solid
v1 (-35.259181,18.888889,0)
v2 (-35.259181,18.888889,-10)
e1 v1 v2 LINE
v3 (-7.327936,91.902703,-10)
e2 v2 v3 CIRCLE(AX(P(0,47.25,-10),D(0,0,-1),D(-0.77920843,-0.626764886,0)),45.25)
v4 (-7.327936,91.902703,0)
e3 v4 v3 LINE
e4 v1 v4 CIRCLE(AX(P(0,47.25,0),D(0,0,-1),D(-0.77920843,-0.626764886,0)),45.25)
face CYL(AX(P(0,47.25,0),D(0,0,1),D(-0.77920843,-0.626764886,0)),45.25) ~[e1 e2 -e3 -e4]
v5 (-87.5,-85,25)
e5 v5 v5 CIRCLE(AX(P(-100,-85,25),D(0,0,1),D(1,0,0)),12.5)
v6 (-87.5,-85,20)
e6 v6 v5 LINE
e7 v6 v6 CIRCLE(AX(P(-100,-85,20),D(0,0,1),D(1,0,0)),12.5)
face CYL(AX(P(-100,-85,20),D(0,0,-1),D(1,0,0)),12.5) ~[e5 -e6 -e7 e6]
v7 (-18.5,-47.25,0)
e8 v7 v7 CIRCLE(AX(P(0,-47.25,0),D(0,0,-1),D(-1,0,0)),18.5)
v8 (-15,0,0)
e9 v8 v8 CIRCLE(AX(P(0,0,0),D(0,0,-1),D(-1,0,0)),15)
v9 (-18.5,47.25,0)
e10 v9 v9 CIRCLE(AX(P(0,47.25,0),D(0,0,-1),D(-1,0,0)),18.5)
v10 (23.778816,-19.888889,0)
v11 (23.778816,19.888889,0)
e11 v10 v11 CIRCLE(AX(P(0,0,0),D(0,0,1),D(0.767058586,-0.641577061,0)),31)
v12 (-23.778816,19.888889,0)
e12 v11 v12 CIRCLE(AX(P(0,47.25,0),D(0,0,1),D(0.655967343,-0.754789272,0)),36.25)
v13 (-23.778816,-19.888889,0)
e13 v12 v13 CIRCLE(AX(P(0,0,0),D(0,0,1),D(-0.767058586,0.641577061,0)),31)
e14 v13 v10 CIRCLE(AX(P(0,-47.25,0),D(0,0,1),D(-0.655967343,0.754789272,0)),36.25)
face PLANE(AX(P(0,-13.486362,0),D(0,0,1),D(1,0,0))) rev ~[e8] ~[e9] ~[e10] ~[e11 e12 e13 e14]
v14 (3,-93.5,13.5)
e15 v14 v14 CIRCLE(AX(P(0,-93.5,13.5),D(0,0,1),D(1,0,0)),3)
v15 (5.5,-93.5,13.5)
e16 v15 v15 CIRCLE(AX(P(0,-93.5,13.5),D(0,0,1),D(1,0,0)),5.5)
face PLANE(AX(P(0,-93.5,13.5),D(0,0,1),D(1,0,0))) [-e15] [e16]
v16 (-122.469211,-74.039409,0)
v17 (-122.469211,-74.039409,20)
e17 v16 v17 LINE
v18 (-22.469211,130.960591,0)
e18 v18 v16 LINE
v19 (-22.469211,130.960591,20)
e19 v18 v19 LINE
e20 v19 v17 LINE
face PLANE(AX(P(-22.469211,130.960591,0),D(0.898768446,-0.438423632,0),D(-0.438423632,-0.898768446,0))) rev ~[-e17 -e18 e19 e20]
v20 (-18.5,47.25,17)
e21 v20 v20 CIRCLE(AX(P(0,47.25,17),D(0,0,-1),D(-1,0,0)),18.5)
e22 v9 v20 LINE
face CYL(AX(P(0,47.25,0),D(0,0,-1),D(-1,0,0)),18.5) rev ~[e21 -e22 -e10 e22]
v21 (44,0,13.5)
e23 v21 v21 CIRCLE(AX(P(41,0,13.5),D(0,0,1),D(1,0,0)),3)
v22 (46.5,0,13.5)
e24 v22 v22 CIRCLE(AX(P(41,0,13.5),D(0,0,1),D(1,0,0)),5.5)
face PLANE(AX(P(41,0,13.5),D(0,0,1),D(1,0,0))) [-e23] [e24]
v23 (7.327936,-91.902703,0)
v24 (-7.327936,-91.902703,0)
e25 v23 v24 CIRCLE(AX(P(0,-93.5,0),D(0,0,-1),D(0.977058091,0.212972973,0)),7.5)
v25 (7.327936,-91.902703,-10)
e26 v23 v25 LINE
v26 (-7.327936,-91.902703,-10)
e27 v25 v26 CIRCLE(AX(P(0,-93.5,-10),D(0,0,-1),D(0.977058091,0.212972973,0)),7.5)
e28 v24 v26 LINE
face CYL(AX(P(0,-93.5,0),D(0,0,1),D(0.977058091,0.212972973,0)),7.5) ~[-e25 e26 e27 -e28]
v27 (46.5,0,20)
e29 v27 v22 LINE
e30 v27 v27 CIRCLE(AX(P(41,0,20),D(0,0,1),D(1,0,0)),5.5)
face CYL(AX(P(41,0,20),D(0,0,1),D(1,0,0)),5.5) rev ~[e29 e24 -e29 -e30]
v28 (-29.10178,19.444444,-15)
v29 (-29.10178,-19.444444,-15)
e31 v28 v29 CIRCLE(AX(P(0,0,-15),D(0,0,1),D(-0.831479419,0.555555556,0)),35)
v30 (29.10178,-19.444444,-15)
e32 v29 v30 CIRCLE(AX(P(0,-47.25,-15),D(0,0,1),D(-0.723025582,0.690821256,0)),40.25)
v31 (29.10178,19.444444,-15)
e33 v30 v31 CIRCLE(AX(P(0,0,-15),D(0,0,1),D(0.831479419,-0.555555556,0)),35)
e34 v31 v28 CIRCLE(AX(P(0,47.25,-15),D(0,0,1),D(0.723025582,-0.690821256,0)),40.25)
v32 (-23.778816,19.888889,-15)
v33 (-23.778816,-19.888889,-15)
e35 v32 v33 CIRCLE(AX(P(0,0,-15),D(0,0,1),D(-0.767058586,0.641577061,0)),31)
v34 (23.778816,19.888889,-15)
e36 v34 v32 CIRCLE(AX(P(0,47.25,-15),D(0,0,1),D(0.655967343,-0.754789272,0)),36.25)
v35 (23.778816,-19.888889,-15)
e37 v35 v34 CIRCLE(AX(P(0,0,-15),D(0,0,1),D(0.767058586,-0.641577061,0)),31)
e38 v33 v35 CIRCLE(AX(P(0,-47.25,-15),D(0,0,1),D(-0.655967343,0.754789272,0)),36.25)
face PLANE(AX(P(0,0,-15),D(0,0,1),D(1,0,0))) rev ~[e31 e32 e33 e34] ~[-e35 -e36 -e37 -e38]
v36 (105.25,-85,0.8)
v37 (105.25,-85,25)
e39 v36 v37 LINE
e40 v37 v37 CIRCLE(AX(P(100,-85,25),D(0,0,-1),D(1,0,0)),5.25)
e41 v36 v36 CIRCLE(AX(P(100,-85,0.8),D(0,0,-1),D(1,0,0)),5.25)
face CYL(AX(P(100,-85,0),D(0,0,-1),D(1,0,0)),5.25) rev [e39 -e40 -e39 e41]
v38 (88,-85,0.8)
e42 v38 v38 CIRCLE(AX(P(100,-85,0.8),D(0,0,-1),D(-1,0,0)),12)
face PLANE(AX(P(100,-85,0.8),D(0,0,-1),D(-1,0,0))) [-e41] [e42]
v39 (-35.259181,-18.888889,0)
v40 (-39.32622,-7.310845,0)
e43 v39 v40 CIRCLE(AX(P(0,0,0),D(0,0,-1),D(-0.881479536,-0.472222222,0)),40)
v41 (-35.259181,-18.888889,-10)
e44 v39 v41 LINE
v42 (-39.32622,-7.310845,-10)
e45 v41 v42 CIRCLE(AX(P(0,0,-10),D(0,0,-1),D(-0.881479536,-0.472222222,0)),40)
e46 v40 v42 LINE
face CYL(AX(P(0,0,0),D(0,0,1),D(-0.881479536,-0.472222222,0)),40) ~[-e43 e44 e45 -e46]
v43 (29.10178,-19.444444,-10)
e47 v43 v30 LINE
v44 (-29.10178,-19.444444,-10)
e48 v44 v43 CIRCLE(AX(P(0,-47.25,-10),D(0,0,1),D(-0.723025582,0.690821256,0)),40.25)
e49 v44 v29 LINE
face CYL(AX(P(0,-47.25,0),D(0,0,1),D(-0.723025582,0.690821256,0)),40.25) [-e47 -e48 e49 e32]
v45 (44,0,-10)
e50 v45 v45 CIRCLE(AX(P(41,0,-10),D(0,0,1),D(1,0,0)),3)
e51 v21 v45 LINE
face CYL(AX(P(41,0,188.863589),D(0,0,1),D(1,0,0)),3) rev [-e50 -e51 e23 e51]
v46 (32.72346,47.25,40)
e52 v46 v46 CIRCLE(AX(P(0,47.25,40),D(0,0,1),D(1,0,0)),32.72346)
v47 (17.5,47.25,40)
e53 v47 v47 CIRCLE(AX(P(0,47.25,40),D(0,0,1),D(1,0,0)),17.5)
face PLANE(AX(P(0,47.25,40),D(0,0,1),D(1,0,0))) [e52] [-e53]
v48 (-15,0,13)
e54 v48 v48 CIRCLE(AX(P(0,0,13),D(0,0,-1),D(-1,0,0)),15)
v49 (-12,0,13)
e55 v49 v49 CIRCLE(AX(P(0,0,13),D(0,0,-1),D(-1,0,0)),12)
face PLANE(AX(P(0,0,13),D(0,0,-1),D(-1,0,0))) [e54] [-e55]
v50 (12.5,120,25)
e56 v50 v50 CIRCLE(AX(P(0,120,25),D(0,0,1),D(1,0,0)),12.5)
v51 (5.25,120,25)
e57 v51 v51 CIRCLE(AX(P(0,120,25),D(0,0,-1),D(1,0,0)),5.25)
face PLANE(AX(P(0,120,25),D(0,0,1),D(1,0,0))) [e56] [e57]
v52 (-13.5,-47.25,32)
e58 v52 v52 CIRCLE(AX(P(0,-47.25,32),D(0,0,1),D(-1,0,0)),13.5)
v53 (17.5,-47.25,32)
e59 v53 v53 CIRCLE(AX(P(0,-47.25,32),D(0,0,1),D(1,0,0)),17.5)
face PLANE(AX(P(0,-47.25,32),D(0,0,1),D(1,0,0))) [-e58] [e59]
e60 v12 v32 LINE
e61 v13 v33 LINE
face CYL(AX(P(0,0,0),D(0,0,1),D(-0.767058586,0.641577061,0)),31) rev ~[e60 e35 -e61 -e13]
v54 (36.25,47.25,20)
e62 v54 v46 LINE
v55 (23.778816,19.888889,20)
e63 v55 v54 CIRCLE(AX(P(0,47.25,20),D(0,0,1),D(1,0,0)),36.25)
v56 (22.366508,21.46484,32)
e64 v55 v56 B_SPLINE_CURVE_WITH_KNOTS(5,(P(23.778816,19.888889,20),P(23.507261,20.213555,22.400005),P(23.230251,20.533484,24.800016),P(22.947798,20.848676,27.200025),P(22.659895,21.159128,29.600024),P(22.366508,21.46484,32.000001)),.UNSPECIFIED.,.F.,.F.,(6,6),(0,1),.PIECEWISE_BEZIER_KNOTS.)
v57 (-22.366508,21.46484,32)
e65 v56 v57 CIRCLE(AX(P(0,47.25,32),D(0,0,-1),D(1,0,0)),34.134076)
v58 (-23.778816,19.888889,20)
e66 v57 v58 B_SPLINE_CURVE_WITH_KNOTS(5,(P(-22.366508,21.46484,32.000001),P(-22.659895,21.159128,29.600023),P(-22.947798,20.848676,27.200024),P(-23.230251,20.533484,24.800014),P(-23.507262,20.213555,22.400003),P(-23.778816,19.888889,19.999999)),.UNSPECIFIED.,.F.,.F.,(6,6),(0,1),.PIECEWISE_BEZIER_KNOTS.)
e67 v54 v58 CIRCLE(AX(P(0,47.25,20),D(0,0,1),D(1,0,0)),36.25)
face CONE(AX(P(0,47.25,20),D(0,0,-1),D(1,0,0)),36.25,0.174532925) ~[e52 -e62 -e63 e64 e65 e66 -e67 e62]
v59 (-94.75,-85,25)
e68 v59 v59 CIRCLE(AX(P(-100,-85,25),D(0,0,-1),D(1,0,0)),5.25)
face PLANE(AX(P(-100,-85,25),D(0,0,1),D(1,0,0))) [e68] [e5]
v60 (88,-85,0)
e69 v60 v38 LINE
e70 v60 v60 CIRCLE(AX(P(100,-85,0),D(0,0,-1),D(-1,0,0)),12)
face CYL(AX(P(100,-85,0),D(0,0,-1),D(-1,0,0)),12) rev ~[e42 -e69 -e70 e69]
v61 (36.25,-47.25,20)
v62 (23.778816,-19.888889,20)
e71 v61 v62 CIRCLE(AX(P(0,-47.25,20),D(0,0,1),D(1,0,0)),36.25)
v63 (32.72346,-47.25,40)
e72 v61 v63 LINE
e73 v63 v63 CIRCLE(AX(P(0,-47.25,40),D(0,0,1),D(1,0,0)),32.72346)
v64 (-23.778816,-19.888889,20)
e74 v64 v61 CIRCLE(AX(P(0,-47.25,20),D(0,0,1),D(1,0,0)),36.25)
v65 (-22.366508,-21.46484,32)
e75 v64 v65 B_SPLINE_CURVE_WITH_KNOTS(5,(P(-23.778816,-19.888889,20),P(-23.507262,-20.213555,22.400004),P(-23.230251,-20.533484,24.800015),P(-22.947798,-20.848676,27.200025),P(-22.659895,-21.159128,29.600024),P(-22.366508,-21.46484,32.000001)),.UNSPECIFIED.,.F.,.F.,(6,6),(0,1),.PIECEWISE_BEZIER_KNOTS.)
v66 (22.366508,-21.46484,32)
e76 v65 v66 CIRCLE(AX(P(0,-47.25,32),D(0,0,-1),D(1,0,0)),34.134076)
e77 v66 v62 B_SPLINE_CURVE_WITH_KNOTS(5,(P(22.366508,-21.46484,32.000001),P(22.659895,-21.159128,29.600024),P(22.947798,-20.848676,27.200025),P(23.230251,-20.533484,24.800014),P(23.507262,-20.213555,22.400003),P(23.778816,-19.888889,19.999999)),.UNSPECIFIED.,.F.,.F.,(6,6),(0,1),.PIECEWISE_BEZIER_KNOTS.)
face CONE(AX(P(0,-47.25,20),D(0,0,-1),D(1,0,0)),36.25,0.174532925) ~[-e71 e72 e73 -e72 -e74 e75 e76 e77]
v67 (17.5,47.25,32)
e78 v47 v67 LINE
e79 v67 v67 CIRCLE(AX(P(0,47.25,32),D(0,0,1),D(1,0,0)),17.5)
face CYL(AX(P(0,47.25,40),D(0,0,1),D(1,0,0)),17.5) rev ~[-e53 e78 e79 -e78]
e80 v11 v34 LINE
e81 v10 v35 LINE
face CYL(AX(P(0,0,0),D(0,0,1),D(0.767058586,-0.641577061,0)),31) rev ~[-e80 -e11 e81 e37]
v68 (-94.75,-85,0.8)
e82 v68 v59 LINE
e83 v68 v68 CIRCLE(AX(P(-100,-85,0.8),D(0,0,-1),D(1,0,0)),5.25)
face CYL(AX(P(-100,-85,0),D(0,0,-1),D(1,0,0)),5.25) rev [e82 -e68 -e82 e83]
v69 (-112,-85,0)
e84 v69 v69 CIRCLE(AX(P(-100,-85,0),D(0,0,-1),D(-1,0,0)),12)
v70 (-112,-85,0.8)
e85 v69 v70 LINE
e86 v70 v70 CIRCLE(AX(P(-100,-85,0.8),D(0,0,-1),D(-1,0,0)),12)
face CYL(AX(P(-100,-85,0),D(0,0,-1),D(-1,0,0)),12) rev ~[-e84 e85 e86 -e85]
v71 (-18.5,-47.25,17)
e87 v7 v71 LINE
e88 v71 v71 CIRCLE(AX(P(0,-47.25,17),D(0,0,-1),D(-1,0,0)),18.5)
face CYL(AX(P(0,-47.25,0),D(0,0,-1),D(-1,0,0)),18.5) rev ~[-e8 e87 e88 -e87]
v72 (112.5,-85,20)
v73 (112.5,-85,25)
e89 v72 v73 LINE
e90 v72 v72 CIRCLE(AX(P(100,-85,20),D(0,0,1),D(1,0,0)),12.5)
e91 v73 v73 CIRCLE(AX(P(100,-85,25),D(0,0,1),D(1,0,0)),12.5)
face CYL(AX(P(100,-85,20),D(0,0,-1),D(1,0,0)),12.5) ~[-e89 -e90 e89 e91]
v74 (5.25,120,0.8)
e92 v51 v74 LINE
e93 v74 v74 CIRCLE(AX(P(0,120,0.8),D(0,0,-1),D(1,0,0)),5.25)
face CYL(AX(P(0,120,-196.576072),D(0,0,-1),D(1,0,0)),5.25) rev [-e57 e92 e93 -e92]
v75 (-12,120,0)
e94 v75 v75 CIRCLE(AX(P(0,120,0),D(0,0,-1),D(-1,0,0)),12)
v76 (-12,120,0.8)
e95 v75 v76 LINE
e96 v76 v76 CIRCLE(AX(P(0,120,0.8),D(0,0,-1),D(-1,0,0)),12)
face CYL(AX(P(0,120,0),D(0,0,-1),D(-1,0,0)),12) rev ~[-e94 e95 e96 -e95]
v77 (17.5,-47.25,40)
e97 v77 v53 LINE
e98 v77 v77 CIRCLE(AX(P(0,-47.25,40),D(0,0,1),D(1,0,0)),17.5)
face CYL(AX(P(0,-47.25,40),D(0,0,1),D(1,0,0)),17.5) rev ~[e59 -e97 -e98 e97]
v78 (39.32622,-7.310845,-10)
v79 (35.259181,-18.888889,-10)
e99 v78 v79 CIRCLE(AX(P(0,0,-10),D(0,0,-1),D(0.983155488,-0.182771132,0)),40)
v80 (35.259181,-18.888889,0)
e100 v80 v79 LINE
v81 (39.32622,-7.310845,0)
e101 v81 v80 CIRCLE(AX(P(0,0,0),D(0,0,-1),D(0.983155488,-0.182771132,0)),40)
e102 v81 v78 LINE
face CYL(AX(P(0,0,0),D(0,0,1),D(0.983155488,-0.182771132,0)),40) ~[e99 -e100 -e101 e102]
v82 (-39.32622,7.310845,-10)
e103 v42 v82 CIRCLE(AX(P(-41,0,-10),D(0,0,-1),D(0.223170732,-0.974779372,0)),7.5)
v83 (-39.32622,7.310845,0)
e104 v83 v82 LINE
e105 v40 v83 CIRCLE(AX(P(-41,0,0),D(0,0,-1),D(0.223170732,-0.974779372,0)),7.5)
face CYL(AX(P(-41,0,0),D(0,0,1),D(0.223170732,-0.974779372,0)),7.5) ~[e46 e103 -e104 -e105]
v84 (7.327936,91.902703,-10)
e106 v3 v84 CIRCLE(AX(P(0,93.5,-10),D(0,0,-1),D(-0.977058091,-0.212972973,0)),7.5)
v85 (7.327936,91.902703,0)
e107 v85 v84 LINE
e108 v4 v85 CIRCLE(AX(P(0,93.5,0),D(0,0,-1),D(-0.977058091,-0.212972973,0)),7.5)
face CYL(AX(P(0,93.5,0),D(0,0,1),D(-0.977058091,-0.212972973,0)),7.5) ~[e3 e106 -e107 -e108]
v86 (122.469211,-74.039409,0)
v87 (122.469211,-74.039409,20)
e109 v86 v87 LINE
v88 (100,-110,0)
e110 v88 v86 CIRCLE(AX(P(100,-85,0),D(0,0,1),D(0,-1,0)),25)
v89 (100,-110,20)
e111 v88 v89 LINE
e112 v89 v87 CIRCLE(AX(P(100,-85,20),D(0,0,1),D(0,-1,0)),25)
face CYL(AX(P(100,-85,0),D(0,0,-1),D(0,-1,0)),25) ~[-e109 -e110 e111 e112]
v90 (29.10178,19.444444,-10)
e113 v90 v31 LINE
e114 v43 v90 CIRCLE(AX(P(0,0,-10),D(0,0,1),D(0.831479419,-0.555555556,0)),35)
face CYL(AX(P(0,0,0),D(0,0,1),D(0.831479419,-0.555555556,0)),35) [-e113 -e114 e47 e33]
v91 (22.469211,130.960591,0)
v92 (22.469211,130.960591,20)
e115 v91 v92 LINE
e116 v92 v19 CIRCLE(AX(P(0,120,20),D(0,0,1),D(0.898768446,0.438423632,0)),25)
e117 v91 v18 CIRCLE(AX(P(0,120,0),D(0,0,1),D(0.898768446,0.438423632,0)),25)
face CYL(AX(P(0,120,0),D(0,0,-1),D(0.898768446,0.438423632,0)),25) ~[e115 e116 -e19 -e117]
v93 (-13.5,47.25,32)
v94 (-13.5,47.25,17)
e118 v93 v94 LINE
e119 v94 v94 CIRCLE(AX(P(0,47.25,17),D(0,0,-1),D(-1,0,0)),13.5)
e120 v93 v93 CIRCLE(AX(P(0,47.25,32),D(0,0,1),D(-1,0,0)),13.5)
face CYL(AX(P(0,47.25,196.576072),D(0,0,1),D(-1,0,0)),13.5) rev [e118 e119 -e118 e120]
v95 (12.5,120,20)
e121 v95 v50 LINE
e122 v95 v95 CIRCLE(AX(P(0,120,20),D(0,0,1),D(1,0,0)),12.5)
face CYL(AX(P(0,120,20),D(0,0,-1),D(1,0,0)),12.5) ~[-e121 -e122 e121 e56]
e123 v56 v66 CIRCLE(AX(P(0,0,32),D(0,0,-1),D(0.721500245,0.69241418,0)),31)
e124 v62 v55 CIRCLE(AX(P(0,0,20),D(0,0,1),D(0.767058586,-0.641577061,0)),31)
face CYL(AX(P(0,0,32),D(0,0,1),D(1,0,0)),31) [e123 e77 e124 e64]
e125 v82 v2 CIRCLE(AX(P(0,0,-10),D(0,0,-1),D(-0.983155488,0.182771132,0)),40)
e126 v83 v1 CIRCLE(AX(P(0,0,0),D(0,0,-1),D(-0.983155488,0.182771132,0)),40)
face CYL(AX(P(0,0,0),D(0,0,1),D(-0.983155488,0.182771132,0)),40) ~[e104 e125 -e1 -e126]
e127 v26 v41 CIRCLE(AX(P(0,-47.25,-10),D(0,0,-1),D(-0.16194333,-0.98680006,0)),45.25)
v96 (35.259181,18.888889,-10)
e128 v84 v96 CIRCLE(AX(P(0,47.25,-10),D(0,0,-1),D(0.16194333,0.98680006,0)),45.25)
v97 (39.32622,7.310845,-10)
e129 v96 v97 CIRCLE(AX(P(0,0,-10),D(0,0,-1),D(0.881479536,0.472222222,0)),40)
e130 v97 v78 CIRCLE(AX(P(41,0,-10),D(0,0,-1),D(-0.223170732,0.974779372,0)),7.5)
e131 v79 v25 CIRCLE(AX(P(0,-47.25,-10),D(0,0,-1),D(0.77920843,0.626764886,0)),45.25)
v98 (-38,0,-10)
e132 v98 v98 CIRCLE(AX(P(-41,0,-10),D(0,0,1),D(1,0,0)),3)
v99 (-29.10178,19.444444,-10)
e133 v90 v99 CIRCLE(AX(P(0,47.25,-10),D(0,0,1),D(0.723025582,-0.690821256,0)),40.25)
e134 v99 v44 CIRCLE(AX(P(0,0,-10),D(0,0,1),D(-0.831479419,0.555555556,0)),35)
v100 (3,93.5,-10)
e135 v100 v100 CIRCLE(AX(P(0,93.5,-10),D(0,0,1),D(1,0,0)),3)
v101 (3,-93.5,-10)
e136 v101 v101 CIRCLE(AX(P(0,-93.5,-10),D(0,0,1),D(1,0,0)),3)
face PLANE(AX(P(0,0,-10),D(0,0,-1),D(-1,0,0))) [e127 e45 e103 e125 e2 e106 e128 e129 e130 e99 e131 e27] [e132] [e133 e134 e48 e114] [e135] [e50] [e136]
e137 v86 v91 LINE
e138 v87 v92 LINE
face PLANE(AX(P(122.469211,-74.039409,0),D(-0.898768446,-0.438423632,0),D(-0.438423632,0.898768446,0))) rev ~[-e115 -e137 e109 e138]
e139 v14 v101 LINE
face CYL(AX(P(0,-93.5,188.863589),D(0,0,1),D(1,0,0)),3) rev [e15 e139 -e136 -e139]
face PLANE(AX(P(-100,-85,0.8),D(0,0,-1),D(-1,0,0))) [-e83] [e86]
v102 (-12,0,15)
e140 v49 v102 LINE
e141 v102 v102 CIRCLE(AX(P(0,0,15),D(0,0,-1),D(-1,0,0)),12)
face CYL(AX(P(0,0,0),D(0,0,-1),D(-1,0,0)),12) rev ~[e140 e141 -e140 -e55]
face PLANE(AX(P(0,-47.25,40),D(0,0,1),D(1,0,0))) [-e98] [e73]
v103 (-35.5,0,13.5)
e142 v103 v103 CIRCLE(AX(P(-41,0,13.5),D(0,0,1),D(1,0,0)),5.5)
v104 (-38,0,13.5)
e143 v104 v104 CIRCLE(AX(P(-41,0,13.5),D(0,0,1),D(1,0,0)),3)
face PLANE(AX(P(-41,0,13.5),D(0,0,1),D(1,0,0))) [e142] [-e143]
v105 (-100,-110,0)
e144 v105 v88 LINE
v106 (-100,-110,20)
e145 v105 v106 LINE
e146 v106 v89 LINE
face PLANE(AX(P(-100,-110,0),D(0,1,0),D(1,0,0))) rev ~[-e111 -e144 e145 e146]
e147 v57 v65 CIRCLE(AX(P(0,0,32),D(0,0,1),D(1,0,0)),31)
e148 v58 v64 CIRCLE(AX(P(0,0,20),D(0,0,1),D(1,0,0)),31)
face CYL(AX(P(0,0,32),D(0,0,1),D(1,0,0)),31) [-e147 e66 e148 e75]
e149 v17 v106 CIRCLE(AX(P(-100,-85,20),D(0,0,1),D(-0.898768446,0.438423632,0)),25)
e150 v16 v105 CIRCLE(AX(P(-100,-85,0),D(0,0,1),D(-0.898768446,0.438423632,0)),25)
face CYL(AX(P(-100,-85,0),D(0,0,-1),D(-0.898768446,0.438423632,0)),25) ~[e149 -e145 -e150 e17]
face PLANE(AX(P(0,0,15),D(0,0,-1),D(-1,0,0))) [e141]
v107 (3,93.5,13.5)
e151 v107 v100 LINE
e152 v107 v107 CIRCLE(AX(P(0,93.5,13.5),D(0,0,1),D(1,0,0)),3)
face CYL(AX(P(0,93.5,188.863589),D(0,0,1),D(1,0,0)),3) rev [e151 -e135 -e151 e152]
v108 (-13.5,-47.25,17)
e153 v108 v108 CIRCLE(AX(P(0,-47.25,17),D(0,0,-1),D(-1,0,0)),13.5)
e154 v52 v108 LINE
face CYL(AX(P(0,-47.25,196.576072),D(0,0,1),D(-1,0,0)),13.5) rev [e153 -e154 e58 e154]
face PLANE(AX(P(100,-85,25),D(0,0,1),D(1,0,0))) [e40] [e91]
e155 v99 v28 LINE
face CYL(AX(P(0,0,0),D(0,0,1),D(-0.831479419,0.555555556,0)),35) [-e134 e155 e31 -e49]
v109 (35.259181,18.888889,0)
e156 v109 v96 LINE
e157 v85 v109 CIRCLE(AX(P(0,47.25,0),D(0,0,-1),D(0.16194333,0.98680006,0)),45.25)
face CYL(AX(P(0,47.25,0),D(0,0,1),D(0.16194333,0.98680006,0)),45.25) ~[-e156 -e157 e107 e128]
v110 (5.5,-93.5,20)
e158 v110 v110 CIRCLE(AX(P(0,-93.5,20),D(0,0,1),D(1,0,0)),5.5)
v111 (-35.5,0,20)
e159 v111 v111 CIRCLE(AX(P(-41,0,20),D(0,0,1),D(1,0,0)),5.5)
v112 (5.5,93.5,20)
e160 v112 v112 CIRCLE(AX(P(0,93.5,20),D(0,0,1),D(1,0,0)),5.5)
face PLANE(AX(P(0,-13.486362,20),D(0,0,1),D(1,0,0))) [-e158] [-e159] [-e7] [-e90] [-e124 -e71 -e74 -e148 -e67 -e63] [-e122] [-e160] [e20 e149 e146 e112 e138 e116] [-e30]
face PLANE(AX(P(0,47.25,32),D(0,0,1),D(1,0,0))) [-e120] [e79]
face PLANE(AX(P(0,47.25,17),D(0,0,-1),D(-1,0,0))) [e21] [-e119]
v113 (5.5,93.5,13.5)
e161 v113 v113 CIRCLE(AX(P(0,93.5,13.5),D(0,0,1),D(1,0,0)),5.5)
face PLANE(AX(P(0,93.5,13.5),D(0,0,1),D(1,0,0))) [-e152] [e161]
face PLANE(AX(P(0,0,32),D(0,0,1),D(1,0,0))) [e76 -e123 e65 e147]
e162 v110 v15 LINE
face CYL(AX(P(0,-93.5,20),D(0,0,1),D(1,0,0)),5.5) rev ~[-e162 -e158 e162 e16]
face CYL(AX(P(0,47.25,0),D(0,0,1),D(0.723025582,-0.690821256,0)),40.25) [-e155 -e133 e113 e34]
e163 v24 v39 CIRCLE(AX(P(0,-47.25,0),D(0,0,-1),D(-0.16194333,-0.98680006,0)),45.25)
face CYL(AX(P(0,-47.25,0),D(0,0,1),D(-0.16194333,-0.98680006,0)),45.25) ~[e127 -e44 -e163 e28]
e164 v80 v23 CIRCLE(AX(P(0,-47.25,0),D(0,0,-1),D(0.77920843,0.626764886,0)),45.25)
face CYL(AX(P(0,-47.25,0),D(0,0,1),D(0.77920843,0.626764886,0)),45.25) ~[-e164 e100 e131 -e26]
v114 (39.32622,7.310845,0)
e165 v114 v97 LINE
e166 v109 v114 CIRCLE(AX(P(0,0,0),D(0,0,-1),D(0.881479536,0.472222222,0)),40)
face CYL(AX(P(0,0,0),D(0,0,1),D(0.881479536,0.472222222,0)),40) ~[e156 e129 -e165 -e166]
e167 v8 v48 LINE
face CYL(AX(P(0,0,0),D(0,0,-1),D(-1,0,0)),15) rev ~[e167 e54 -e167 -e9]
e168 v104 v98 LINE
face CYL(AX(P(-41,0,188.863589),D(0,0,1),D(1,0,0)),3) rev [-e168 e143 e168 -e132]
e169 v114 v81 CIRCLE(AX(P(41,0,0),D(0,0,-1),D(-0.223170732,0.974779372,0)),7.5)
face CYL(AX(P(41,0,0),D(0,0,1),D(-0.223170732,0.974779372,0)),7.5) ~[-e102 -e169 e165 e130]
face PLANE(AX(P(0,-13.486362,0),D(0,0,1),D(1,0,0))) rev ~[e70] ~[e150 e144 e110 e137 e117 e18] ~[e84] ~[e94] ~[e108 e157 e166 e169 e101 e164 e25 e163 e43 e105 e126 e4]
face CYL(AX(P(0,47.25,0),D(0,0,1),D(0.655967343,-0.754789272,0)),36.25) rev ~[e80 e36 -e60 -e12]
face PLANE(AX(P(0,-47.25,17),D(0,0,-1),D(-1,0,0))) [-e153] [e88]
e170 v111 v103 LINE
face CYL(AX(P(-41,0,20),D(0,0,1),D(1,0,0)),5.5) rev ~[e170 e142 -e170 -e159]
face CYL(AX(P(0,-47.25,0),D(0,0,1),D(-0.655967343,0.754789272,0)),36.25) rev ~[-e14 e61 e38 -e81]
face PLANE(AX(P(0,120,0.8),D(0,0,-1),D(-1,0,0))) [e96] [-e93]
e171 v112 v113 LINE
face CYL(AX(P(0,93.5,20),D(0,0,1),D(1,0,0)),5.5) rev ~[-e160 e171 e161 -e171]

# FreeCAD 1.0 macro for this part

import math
import FreeCAD as App
import Part
import Sketcher
from FreeCAD import Vector
Q = App.Units.Quantity


def faces_at(feature, points):
    """Names of the faces that lie closest to the given points."""
    faces = feature.Shape.Faces
    near = lambda p: min(range(len(faces)), key=lambda i: faces[i].distToShape(Part.Vertex(*p))[0])
    return sorted({f"Face{near(p) + 1}" for p in points})

doc = App.newDocument("Part")
params = doc.addObject("Spreadsheet::Sheet", "Params")
for row, (alias, value) in enumerate([
    ("sketch1_radius", "25 mm"),
    ("sketch1_diameter", "10.5 mm"),
    ("sketch1_width", "200 mm"),
    ("pad1_length", "20 mm"),
    ("sketch2_radius", "40 mm"),
    ("sketch2_radius2", "35 mm"),
    ("sketch2_radius3", "7.5 mm"),
    ("sketch2_radius4", "45.25 mm"),
    ("sketch2_radius5", "40.25 mm"),
    ("pad2_length", "10 mm"),
    ("sketch3_radius", "35 mm"),
    ("sketch3_radius2", "31 mm"),
    ("sketch3_radius3", "40.25 mm"),
    ("sketch3_radius4", "36.25 mm"),
    ("pad3_length", "15 mm"),
    ("sketch4_diameter", "72.5 mm"),
    ("pad4_length", "20 mm"),
    ("draft_angle", "10 deg"),
    ("sketch5_diameter", "72.5 mm"),
    ("pad5_length", "20 mm"),
    ("draft2_angle", "10 deg"),
    ("sketch6_diameter", "25 mm"),
    ("pad6_length", "5 mm"),
    ("sketch7_diameter", "10.5 mm"),
    ("sketch8_diameter", "62 mm"),
    ("pad7_length", "12 mm"),
    ("sketch9_diameter", "27 mm"),
    ("sketch10_diameter", "37 mm"),
    ("sketch10_diameter2", "27 mm"),
    ("pocket3_length", "17 mm"),
    ("sketch11_diameter", "24 mm"),
    ("pocket4_length", "15 mm"),
    ("sketch12_diameter", "30 mm"),
    ("sketch12_diameter2", "24 mm"),
    ("pocket5_length", "13 mm"),
    ("sketch13_diameter", "35 mm"),
    ("pocket6_length", "8 mm"),
    ("sketch14_diameter", "6 mm"),
    ("sketch15_diameter", "11 mm"),
    ("pocket8_length", "6.5 mm"),
    ("sketch16_diameter", "24 mm"),
    ("pocket9_length", "0.8 mm"),
], start=1):
    params.set(f"A{row}", alias)
    params.set(f"B{row}", "=" + value)
    params.setAlias(f"B{row}", alias)

body = doc.addObject("PartDesign::Body", "Body")

sketch1 = doc.addObject("Sketcher::SketchObject", "Sketch")
body.addObject(sketch1)
sketch1.AttachmentSupport = (doc.XY_Plane, [""])
sketch1.MapMode = "FlatFace"
sketch1.addGeometry([
    Part.LineSegment(Vector(-22, 131, 0), Vector(-122, -74, 0)),
    Part.ArcOfCircle(Part.Circle(Vector(-100, -85, 0), Vector(0, 0, 1), 25), math.radians(154), math.radians(270)),
    Part.LineSegment(Vector(-100, -110, 0), Vector(100, -110, 0)),
    Part.ArcOfCircle(Part.Circle(Vector(100, -85, 0), Vector(0, 0, 1), 25), math.radians(-90), math.radians(26)),
    Part.LineSegment(Vector(122, -74, 0), Vector(22, 131, 0)),
    Part.ArcOfCircle(Part.Circle(Vector(0, 120, 0), Vector(0, 0, 1), 25), math.radians(26), math.radians(154)),
    Part.Circle(Vector(-100, -85, 0), Vector(0, 0, 1), 5),
    Part.Circle(Vector(100, -85, 0), Vector(0, 0, 1), 5),
    Part.Circle(Vector(0, 120, 0), Vector(0, 0, 1), 5),
], False)
sketch1.addConstraint([
    Sketcher.Constraint("Tangent", 0, 2, 1, 1),
    Sketcher.Constraint("Tangent", 1, 2, 2, 1),
    Sketcher.Constraint("Tangent", 2, 2, 3, 1),
    Sketcher.Constraint("Tangent", 3, 2, 4, 1),
    Sketcher.Constraint("Tangent", 4, 2, 5, 1),
    Sketcher.Constraint("Tangent", 5, 2, 0, 1),
    Sketcher.Constraint("Horizontal", 2),
    Sketcher.Constraint("Coincident", 6, 3, 1, 3),
    Sketcher.Constraint("Coincident", 7, 3, 3, 3),
    Sketcher.Constraint("Coincident", 8, 3, 5, 3),
    Sketcher.Constraint("Equal", 1, 3),
    Sketcher.Constraint("Equal", 3, 5),
    Sketcher.Constraint("Equal", 6, 7),
    Sketcher.Constraint("Equal", 7, 8),
    Sketcher.Constraint("Symmetric", 0, 2, 3, 2, -2),
    Sketcher.Constraint("Radius", 1, Q("25 mm")),
    Sketcher.Constraint("Diameter", 6, Q("10.5 mm")),
    Sketcher.Constraint("DistanceX", 2, 1, 2, 2, Q("200 mm")),
    Sketcher.Constraint("DistanceY", 1, 3, -1, 1, Q("85 mm")),
    Sketcher.Constraint("DistanceY", -1, 1, 5, 3, Q("120 mm")),
])
sketch1.setExpression("Constraints[15]", "Params.sketch1_radius")
sketch1.setExpression("Constraints[16]", "Params.sketch1_diameter")
sketch1.setExpression("Constraints[17]", "Params.sketch1_width")
pad1 = doc.addObject("PartDesign::Pad", "Pad")
body.addObject(pad1)
pad1.Profile = sketch1
pad1.setExpression("Length", "Params.pad1_length")

sketch2 = doc.addObject("Sketcher::SketchObject", "Sketch001")
body.addObject(sketch2)
sketch2.AttachmentSupport = (doc.XY_Plane, [""])
sketch2.MapMode = "FlatFace"
sketch2.addGeometry([
    Part.ArcOfCircle(Part.Circle(Vector(41, 0, 0), Vector(0, 0, 1), 8), math.radians(-103), math.radians(103)),
    Part.ArcOfCircle(Part.Circle(Vector(0, 0, 0), Vector(0, 0, 1), 40), math.radians(10.53), math.radians(28.18)),
    Part.ArcOfCircle(Part.Circle(Vector(0, 47, 0), Vector(0, 0, 1), 45), math.radians(-39), math.radians(81)),
    Part.ArcOfCircle(Part.Circle(Vector(0, 94, 0), Vector(0, 0, 1), 8), math.radians(-12), math.radians(192)),
    Part.ArcOfCircle(Part.Circle(Vector(0, 47, 0), Vector(0, 0, 1), 45), math.radians(99), math.radians(219)),
    Part.ArcOfCircle(Part.Circle(Vector(0, 0, 0), Vector(0, 0, 1), 40), math.radians(151.82), math.radians(169.47)),
    Part.ArcOfCircle(Part.Circle(Vector(-41, 0, 0), Vector(0, 0, 1), 8), math.radians(77), math.radians(283)),
    Part.ArcOfCircle(Part.Circle(Vector(0, 0, 0), Vector(0, 0, 1), 40), math.radians(-169.47), math.radians(-151.82)),
    Part.ArcOfCircle(Part.Circle(Vector(0, -47, 0), Vector(0, 0, 1), 45), math.radians(141), math.radians(261)),
    Part.ArcOfCircle(Part.Circle(Vector(0, -94, 0), Vector(0, 0, 1), 8), math.radians(168), math.radians(372)),
    Part.ArcOfCircle(Part.Circle(Vector(0, -47, 0), Vector(0, 0, 1), 45), math.radians(-81), math.radians(39)),
    Part.ArcOfCircle(Part.Circle(Vector(0, 0, 0), Vector(0, 0, 1), 40), math.radians(-28.18), math.radians(-10.53)),
    Part.ArcOfCircle(Part.Circle(Vector(0, -47, 0), Vector(0, 0, 1), 40), math.radians(136), math.radians(404)),
    Part.ArcOfCircle(Part.Circle(Vector(0, 0, 0), Vector(0, 0, 1), 35), math.radians(146), math.radians(214)),
    Part.ArcOfCircle(Part.Circle(Vector(0, 47, 0), Vector(0, 0, 1), 40), math.radians(-44), math.radians(224)),
    Part.ArcOfCircle(Part.Circle(Vector(0, 0, 0), Vector(0, 0, 1), 35), math.radians(-34), math.radians(34)),
], False)
sketch2.addConstraint([
    Sketcher.Constraint("Coincident", 0, 2, 1, 1),
    Sketcher.Constraint("Coincident", 1, 2, 2, 1),
    Sketcher.Constraint("Coincident", 2, 2, 3, 1),
    Sketcher.Constraint("Coincident", 3, 2, 4, 1),
    Sketcher.Constraint("Coincident", 4, 2, 5, 1),
    Sketcher.Constraint("Coincident", 5, 2, 6, 1),
    Sketcher.Constraint("Coincident", 6, 2, 7, 1),
    Sketcher.Constraint("Coincident", 7, 2, 8, 1),
    Sketcher.Constraint("Coincident", 8, 2, 9, 1),
    Sketcher.Constraint("Coincident", 9, 2, 10, 1),
    Sketcher.Constraint("Coincident", 10, 2, 11, 1),
    Sketcher.Constraint("Coincident", 11, 2, 0, 1),
    Sketcher.Constraint("Coincident", 12, 1, 13, 2),
    Sketcher.Constraint("Coincident", 13, 1, 14, 2),
    Sketcher.Constraint("Coincident", 14, 1, 15, 2),
    Sketcher.Constraint("Coincident", 15, 1, 12, 2),
    Sketcher.Constraint("Coincident", 1, 3, -1, 1),
    Sketcher.Constraint("Coincident", 5, 3, -1, 1),
    Sketcher.Constraint("Coincident", 7, 3, -1, 1),
    Sketcher.Constraint("Coincident", 11, 3, -1, 1),
    Sketcher.Constraint("Coincident", 13, 3, -1, 1),
    Sketcher.Constraint("Coincident", 15, 3, -1, 1),
    Sketcher.Constraint("Coincident", 4, 3, 2, 3),
    Sketcher.Constraint("Coincident", 10, 3, 8, 3),
    Sketcher.Constraint("Coincident", 12, 3, 8, 3),
    Sketcher.Constraint("Coincident", 14, 3, 2, 3),
    Sketcher.Constraint("Equal", 0, 3),
    Sketcher.Constraint("Equal", 2, 4),
    Sketcher.Constraint("Equal", 1, 5),
    Sketcher.Constraint("Equal", 3, 6),
    Sketcher.Constraint("Equal", 5, 7),
    Sketcher.Constraint("Equal", 4, 8),
    Sketcher.Constraint("Equal", 6, 9),
    Sketcher.Constraint("Equal", 8, 10),
    Sketcher.Constraint("Equal", 7, 11),
    Sketcher.Constraint("Equal", 12, 14),
    Sketcher.Constraint("Equal", 13, 15),
    Sketcher.Constraint("Symmetric", 0, 3, 6, 3, -1, 1),
    Sketcher.Constraint("Symmetric", 2, 3, 8, 3, -1, 1),
    Sketcher.Constraint("Symmetric", 3, 3, 9, 3, -1, 1),
    Sketcher.Constraint("Symmetric", 2, 2, 3, 2, -2),
    Sketcher.Constraint("PointOnObject", 0, 3, -1),
    Sketcher.Constraint("Radius", 1, Q("40 mm")),
    Sketcher.Constraint("Radius", 13, Q("35 mm")),
    Sketcher.Constraint("Radius", 0, Q("7.5 mm")),
    Sketcher.Constraint("Radius", 2, Q("45.25 mm")),
    Sketcher.Constraint("Radius", 12, Q("40.25 mm")),
    Sketcher.Constraint("DistanceX", -1, 1, 0, 3, Q("41 mm")),
    Sketcher.Constraint("DistanceY", -1, 1, 3, 3, Q("93.5 mm")),
    Sketcher.Constraint("DistanceY", -1, 1, 2, 3, Q("47.25 mm")),
])
sketch2.setExpression("Constraints[42]", "Params.sketch2_radius")
sketch2.setExpression("Constraints[43]", "Params.sketch2_radius2")
sketch2.setExpression("Constraints[44]", "Params.sketch2_radius3")
sketch2.setExpression("Constraints[45]", "Params.sketch2_radius4")
sketch2.setExpression("Constraints[46]", "Params.sketch2_radius5")
pad2 = doc.addObject("PartDesign::Pad", "Pad001")
body.addObject(pad2)
pad2.Profile = sketch2
pad2.setExpression("Length", "Params.pad2_length")
pad2.Reversed = True

sketch3 = doc.addObject("Sketcher::SketchObject", "Sketch002")
body.addObject(sketch3)
sketch3.AttachmentSupport = (doc.XY_Plane, [""])
sketch3.MapMode = "FlatFace"
sketch3.addGeometry([
    Part.ArcOfCircle(Part.Circle(Vector(0, 47, 0), Vector(0, 0, 1), 40), math.radians(-44), math.radians(224)),
    Part.ArcOfCircle(Part.Circle(Vector(0, 0, 0), Vector(0, 0, 1), 35), math.radians(146), math.radians(214)),
    Part.ArcOfCircle(Part.Circle(Vector(0, -47, 0), Vector(0, 0, 1), 40), math.radians(136), math.radians(404)),
    Part.ArcOfCircle(Part.Circle(Vector(0, 0, 0), Vector(0, 0, 1), 35), math.radians(-34), math.radians(34)),
    Part.ArcOfCircle(Part.Circle(Vector(0, 47, 0), Vector(0, 0, 1), 36), math.radians(-49), math.radians(229)),
    Part.ArcOfCircle(Part.Circle(Vector(0, 0, 0), Vector(0, 0, 1), 31), math.radians(-40), math.radians(40)),
    Part.ArcOfCircle(Part.Circle(Vector(0, -47, 0), Vector(0, 0, 1), 36), math.radians(131), math.radians(409)),
    Part.ArcOfCircle(Part.Circle(Vector(0, 0, 0), Vector(0, 0, 1), 31), math.radians(140), math.radians(220)),
], False)
sketch3.addConstraint([
    Sketcher.Constraint("Coincident", 0, 2, 1, 1),
    Sketcher.Constraint("Coincident", 1, 2, 2, 1),
    Sketcher.Constraint("Coincident", 2, 2, 3, 1),
    Sketcher.Constraint("Coincident", 3, 2, 0, 1),
    Sketcher.Constraint("Coincident", 4, 1, 5, 2),
    Sketcher.Constraint("Coincident", 5, 1, 6, 2),
    Sketcher.Constraint("Coincident", 6, 1, 7, 2),
    Sketcher.Constraint("Coincident", 7, 1, 4, 2),
    Sketcher.Constraint("Coincident", 1, 3, -1, 1),
    Sketcher.Constraint("Coincident", 3, 3, -1, 1),
    Sketcher.Constraint("Coincident", 5, 3, -1, 1),
    Sketcher.Constraint("Coincident", 7, 3, -1, 1),
    Sketcher.Constraint("Coincident", 4, 3, 0, 3),
    Sketcher.Constraint("Coincident", 6, 3, 2, 3),
    Sketcher.Constraint("Equal", 0, 2),
    Sketcher.Constraint("Equal", 1, 3),
    Sketcher.Constraint("Equal", 4, 6),
    Sketcher.Constraint("Equal", 5, 7),
    Sketcher.Constraint("Symmetric", 0, 3, 2, 3, -1, 1),
    Sketcher.Constraint("PointOnObject", 0, 3, -2),
    Sketcher.Constraint("Radius", 1, Q("35 mm")),
    Sketcher.Constraint("Radius", 5, Q("31 mm")),
    Sketcher.Constraint("Radius", 0, Q("40.25 mm")),
    Sketcher.Constraint("Radius", 4, Q("36.25 mm")),
    Sketcher.Constraint("DistanceY", 2, 3, 0, 3, Q("94.5 mm")),
])
sketch3.setExpression("Constraints[20]", "Params.sketch3_radius")
sketch3.setExpression("Constraints[21]", "Params.sketch3_radius2")
sketch3.setExpression("Constraints[22]", "Params.sketch3_radius3")
sketch3.setExpression("Constraints[23]", "Params.sketch3_radius4")
pad3 = doc.addObject("PartDesign::Pad", "Pad002")
body.addObject(pad3)
pad3.Profile = sketch3
pad3.setExpression("Length", "Params.pad3_length")
pad3.Reversed = True
body2 = doc.addObject("PartDesign::Body", "Body001")

sketch4 = doc.addObject("Sketcher::SketchObject", "Sketch003")
body2.addObject(sketch4)
sketch4.AttachmentSupport = (doc.getObject("XY_Plane001"), [""])
sketch4.MapMode = "FlatFace"
sketch4.AttachmentOffset = App.Placement(Vector(0, 0, 20), App.Rotation())
sketch4.addGeometry(Part.Circle(Vector(0, 47, 0), Vector(0, 0, 1), 36), False)
sketch4.addConstraint([
    Sketcher.Constraint("PointOnObject", 0, 3, -2),
    Sketcher.Constraint("Diameter", 0, Q("72.5 mm")),
    Sketcher.Constraint("DistanceY", -1, 1, 0, 3, Q("47.25 mm")),
])
sketch4.setExpression("Constraints[1]", "Params.sketch4_diameter")
pad4 = doc.addObject("PartDesign::Pad", "Pad003")
body2.addObject(pad4)
pad4.Profile = sketch4
pad4.setExpression("Length", "Params.pad4_length")
doc.recompute()

datumplane = doc.addObject("PartDesign::Plane", "DatumPlane")
body2.addObject(datumplane)
datumplane.AttachmentSupport = (doc.getObject("XY_Plane001"), [""])
datumplane.MapMode = "FlatFace"
datumplane.AttachmentOffset = App.Placement(Vector(0, 0, 20), App.Rotation())
draft = doc.addObject("PartDesign::Draft", "Draft")
body2.addObject(draft)
draft.Base = (pad4, faces_at(pad4, [(-36.25, 47.25, 30)]))
draft.NeutralPlane = (datumplane, [""])
draft.setExpression("Angle", "Params.draft_angle")
draft.Reversed = False
doc.recompute()

boolean = doc.addObject("PartDesign::Boolean", "Boolean")
body.addObject(boolean)
boolean.Type = "Fuse"
boolean.addObjects([body2])
body3 = doc.addObject("PartDesign::Body", "Body002")

sketch5 = doc.addObject("Sketcher::SketchObject", "Sketch004")
body3.addObject(sketch5)
sketch5.AttachmentSupport = (doc.getObject("XY_Plane002"), [""])
sketch5.MapMode = "FlatFace"
sketch5.AttachmentOffset = App.Placement(Vector(0, 0, 20), App.Rotation())
sketch5.addGeometry(Part.Circle(Vector(0, -47, 0), Vector(0, 0, 1), 36), False)
sketch5.addConstraint([
    Sketcher.Constraint("PointOnObject", 0, 3, -2),
    Sketcher.Constraint("Diameter", 0, Q("72.5 mm")),
    Sketcher.Constraint("DistanceY", 0, 3, -1, 1, Q("47.25 mm")),
])
sketch5.setExpression("Constraints[1]", "Params.sketch5_diameter")
pad5 = doc.addObject("PartDesign::Pad", "Pad004")
body3.addObject(pad5)
pad5.Profile = sketch5
pad5.setExpression("Length", "Params.pad5_length")
doc.recompute()

datumplane2 = doc.addObject("PartDesign::Plane", "DatumPlane001")
body3.addObject(datumplane2)
datumplane2.AttachmentSupport = (doc.getObject("XY_Plane002"), [""])
datumplane2.MapMode = "FlatFace"
datumplane2.AttachmentOffset = App.Placement(Vector(0, 0, 20), App.Rotation())
draft2 = doc.addObject("PartDesign::Draft", "Draft001")
body3.addObject(draft2)
draft2.Base = (pad5, faces_at(pad5, [(-36.25, -47.25, 30)]))
draft2.NeutralPlane = (datumplane2, [""])
draft2.setExpression("Angle", "Params.draft2_angle")
draft2.Reversed = False
doc.recompute()

boolean2 = doc.addObject("PartDesign::Boolean", "Boolean001")
body.addObject(boolean2)
boolean2.Type = "Fuse"
boolean2.addObjects([body3])

sketch6 = doc.addObject("Sketcher::SketchObject", "Sketch005")
body.addObject(sketch6)
sketch6.AttachmentSupport = (doc.XY_Plane, [""])
sketch6.MapMode = "FlatFace"
sketch6.AttachmentOffset = App.Placement(Vector(0, 0, 20), App.Rotation())
sketch6.addGeometry([
    Part.Circle(Vector(0, 120, 0), Vector(0, 0, 1), 12),
    Part.Circle(Vector(-100, -85, 0), Vector(0, 0, 1), 12),
    Part.Circle(Vector(100, -85, 0), Vector(0, 0, 1), 12),
], False)
sketch6.addConstraint([
    Sketcher.Constraint("Equal", 0, 1),
    Sketcher.Constraint("Equal", 1, 2),
    Sketcher.Constraint("Symmetric", 1, 3, 2, 3, -2),
    Sketcher.Constraint("PointOnObject", 0, 3, -2),
    Sketcher.Constraint("Diameter", 0, Q("25 mm")),
    Sketcher.Constraint("DistanceY", -1, 1, 0, 3, Q("120 mm")),
    Sketcher.Constraint("DistanceX", 1, 3, -1, 1, Q("100 mm")),
    Sketcher.Constraint("DistanceY", 1, 3, -1, 1, Q("85 mm")),
])
sketch6.setExpression("Constraints[4]", "Params.sketch6_diameter")
pad6 = doc.addObject("PartDesign::Pad", "Pad005")
body.addObject(pad6)
pad6.Profile = sketch6
pad6.setExpression("Length", "Params.pad6_length")

sketch7 = doc.addObject("Sketcher::SketchObject", "Sketch006")
body.addObject(sketch7)
sketch7.AttachmentSupport = (doc.XY_Plane, [""])
sketch7.MapMode = "FlatFace"
sketch7.addGeometry([
    Part.Circle(Vector(0, 120, 0), Vector(0, 0, 1), 5),
    Part.Circle(Vector(100, -85, 0), Vector(0, 0, 1), 5),
    Part.Circle(Vector(-100, -85, 0), Vector(0, 0, 1), 5),
], False)
sketch7.addConstraint([
    Sketcher.Constraint("Equal", 0, 1),
    Sketcher.Constraint("Equal", 1, 2),
    Sketcher.Constraint("Symmetric", 1, 3, 2, 3, -2),
    Sketcher.Constraint("PointOnObject", 0, 3, -2),
    Sketcher.Constraint("Diameter", 0, Q("10.5 mm")),
    Sketcher.Constraint("DistanceY", -1, 1, 0, 3, Q("120 mm")),
    Sketcher.Constraint("DistanceX", -1, 1, 1, 3, Q("100 mm")),
    Sketcher.Constraint("DistanceY", 1, 3, -1, 1, Q("85 mm")),
])
sketch7.setExpression("Constraints[4]", "Params.sketch7_diameter")
pocket1 = doc.addObject("PartDesign::Pocket", "Pocket")
body.addObject(pocket1)
pocket1.Profile = sketch7
pocket1.Type = "ThroughAll"
pocket1.Midplane = True

sketch8 = doc.addObject("Sketcher::SketchObject", "Sketch007")
body.addObject(sketch8)
sketch8.AttachmentSupport = (doc.XY_Plane, [""])
sketch8.MapMode = "FlatFace"
sketch8.AttachmentOffset = App.Placement(Vector(0, 0, 32), App.Rotation())
sketch8.addGeometry(Part.Circle(Vector(0, 0, 0), Vector(0, 0, 1), 31), False)
sketch8.addConstraint([
    Sketcher.Constraint("Coincident", 0, 3, -1, 1),
    Sketcher.Constraint("Diameter", 0, Q("62 mm")),
])
sketch8.setExpression("Constraints[1]", "Params.sketch8_diameter")
pad7 = doc.addObject("PartDesign::Pad", "Pad006")
body.addObject(pad7)
pad7.Profile = sketch8
pad7.setExpression("Length", "Params.pad7_length")
pad7.Reversed = True

sketch9 = doc.addObject("Sketcher::SketchObject", "Sketch008")
body.addObject(sketch9)
sketch9.AttachmentSupport = (doc.XY_Plane, [""])
sketch9.MapMode = "FlatFace"
sketch9.addGeometry([
    Part.Circle(Vector(0, 47, 0), Vector(0, 0, 1), 14),
    Part.Circle(Vector(0, -47, 0), Vector(0, 0, 1), 14),
], False)
sketch9.addConstraint([
    Sketcher.Constraint("Equal", 0, 1),
    Sketcher.Constraint("Symmetric", 0, 3, 1, 3, -1, 1),
    Sketcher.Constraint("PointOnObject", 0, 3, -2),
    Sketcher.Constraint("Diameter", 0, Q("27 mm")),
    Sketcher.Constraint("DistanceY", 1, 3, 0, 3, Q("94.5 mm")),
])
sketch9.setExpression("Constraints[3]", "Params.sketch9_diameter")
pocket2 = doc.addObject("PartDesign::Pocket", "Pocket001")
body.addObject(pocket2)
pocket2.Profile = sketch9
pocket2.Type = "ThroughAll"
pocket2.Midplane = True

sketch10 = doc.addObject("Sketcher::SketchObject", "Sketch009")
body.addObject(sketch10)
sketch10.AttachmentSupport = (doc.XY_Plane, [""])
sketch10.MapMode = "FlatFace"
sketch10.addGeometry([
    Part.Circle(Vector(0, 47, 0), Vector(0, 0, 1), 18),
    Part.Circle(Vector(0, 47, 0), Vector(0, 0, 1), 14),
    Part.Circle(Vector(0, -47, 0), Vector(0, 0, 1), 18),
    Part.Circle(Vector(0, -47, 0), Vector(0, 0, 1), 14),
], False)
sketch10.addConstraint([
    Sketcher.Constraint("Coincident", 1, 3, 0, 3),
    Sketcher.Constraint("Coincident", 3, 3, 2, 3),
    Sketcher.Constraint("Equal", 0, 2),
    Sketcher.Constraint("Equal", 1, 3),
    Sketcher.Constraint("Symmetric", 0, 3, 2, 3, -1, 1),
    Sketcher.Constraint("PointOnObject", 0, 3, -2),
    Sketcher.Constraint("Diameter", 0, Q("37 mm")),
    Sketcher.Constraint("Diameter", 1, Q("27 mm")),
    Sketcher.Constraint("DistanceY", 2, 3, 0, 3, Q("94.5 mm")),
])
sketch10.setExpression("Constraints[6]", "Params.sketch10_diameter")
sketch10.setExpression("Constraints[7]", "Params.sketch10_diameter2")
pocket3 = doc.addObject("PartDesign::Pocket", "Pocket002")
body.addObject(pocket3)
pocket3.Profile = sketch10
pocket3.setExpression("Length", "Params.pocket3_length")
pocket3.Reversed = True

sketch11 = doc.addObject("Sketcher::SketchObject", "Sketch010")
body.addObject(sketch11)
sketch11.AttachmentSupport = (doc.XY_Plane, [""])
sketch11.MapMode = "FlatFace"
sketch11.addGeometry(Part.Circle(Vector(0, 0, 0), Vector(0, 0, 1), 12), False)
sketch11.addConstraint([
    Sketcher.Constraint("Coincident", 0, 3, -1, 1),
    Sketcher.Constraint("Diameter", 0, Q("24 mm")),
])
sketch11.setExpression("Constraints[1]", "Params.sketch11_diameter")
pocket4 = doc.addObject("PartDesign::Pocket", "Pocket003")
body.addObject(pocket4)
pocket4.Profile = sketch11
pocket4.setExpression("Length", "Params.pocket4_length")
pocket4.Reversed = True

sketch12 = doc.addObject("Sketcher::SketchObject", "Sketch011")
body.addObject(sketch12)
sketch12.AttachmentSupport = (doc.XY_Plane, [""])
sketch12.MapMode = "FlatFace"
sketch12.addGeometry([
    Part.Circle(Vector(0, 0, 0), Vector(0, 0, 1), 15),
    Part.Circle(Vector(0, 0, 0), Vector(0, 0, 1), 12),
], False)
sketch12.addConstraint([
    Sketcher.Constraint("Coincident", 0, 3, -1, 1),
    Sketcher.Constraint("Coincident", 1, 3, -1, 1),
    Sketcher.Constraint("Diameter", 0, Q("30 mm")),
    Sketcher.Constraint("Diameter", 1, Q("24 mm")),
])
sketch12.setExpression("Constraints[2]", "Params.sketch12_diameter")
sketch12.setExpression("Constraints[3]", "Params.sketch12_diameter2")
pocket5 = doc.addObject("PartDesign::Pocket", "Pocket004")
body.addObject(pocket5)
pocket5.Profile = sketch12
pocket5.setExpression("Length", "Params.pocket5_length")
pocket5.Reversed = True

sketch13 = doc.addObject("Sketcher::SketchObject", "Sketch012")
body.addObject(sketch13)
sketch13.AttachmentSupport = (doc.XY_Plane, [""])
sketch13.MapMode = "FlatFace"
sketch13.AttachmentOffset = App.Placement(Vector(0, 0, 40), App.Rotation())
sketch13.addGeometry([
    Part.Circle(Vector(0, 47, 0), Vector(0, 0, 1), 18),
    Part.Circle(Vector(0, -47, 0), Vector(0, 0, 1), 18),
], False)
sketch13.addConstraint([
    Sketcher.Constraint("Equal", 0, 1),
    Sketcher.Constraint("Symmetric", 0, 3, 1, 3, -1, 1),
    Sketcher.Constraint("PointOnObject", 0, 3, -2),
    Sketcher.Constraint("Diameter", 0, Q("35 mm")),
    Sketcher.Constraint("DistanceY", 1, 3, 0, 3, Q("94.5 mm")),
])
sketch13.setExpression("Constraints[3]", "Params.sketch13_diameter")
pocket6 = doc.addObject("PartDesign::Pocket", "Pocket005")
body.addObject(pocket6)
pocket6.Profile = sketch13
pocket6.setExpression("Length", "Params.pocket6_length")

sketch14 = doc.addObject("Sketcher::SketchObject", "Sketch013")
body.addObject(sketch14)
sketch14.AttachmentSupport = (doc.XY_Plane, [""])
sketch14.MapMode = "FlatFace"
sketch14.AttachmentOffset = App.Placement(Vector(0, 0, -10), App.Rotation())
sketch14.addGeometry([
    Part.Circle(Vector(0, 93.5, 0), Vector(0, 0, 1), 3),
    Part.Circle(Vector(-41, 0, 0), Vector(0, 0, 1), 3),
    Part.Circle(Vector(0, -93.5, 0), Vector(0, 0, 1), 3),
    Part.Circle(Vector(41, 0, 0), Vector(0, 0, 1), 3),
], False)
sketch14.addConstraint([
    Sketcher.Constraint("Equal", 0, 1),
    Sketcher.Constraint("Equal", 1, 2),
    Sketcher.Constraint("Equal", 2, 3),
    Sketcher.Constraint("Symmetric", 0, 3, 2, 3, -1, 1),
    Sketcher.Constraint("Symmetric", 1, 3, 3, 3, -1, 1),
    Sketcher.Constraint("PointOnObject", 0, 3, -2),
    Sketcher.Constraint("PointOnObject", 1, 3, -1),
    Sketcher.Constraint("Diameter", 0, Q("6 mm")),
    Sketcher.Constraint("DistanceX", 1, 3, -1, 1, Q("41 mm")),
    Sketcher.Constraint("DistanceY", 2, 3, 0, 3, Q("187 mm")),
])
sketch14.setExpression("Constraints[7]", "Params.sketch14_diameter")
pocket7 = doc.addObject("PartDesign::Pocket", "Pocket006")
body.addObject(pocket7)
pocket7.Profile = sketch14
pocket7.Type = "ThroughAll"
pocket7.Midplane = True

sketch15 = doc.addObject("Sketcher::SketchObject", "Sketch014")
body.addObject(sketch15)
sketch15.AttachmentSupport = (doc.XY_Plane, [""])
sketch15.MapMode = "FlatFace"
sketch15.AttachmentOffset = App.Placement(Vector(0, 0, 20), App.Rotation())
sketch15.addGeometry([
    Part.Circle(Vector(0, 94, 0), Vector(0, 0, 1), 6),
    Part.Circle(Vector(-41, 0, 0), Vector(0, 0, 1), 6),
    Part.Circle(Vector(41, 0, 0), Vector(0, 0, 1), 6),
    Part.Circle(Vector(0, -94, 0), Vector(0, 0, 1), 6),
], False)
sketch15.addConstraint([
    Sketcher.Constraint("Equal", 0, 1),
    Sketcher.Constraint("Equal", 1, 2),
    Sketcher.Constraint("Equal", 2, 3),
    Sketcher.Constraint("Symmetric", 1, 3, 2, 3, -1, 1),
    Sketcher.Constraint("Symmetric", 0, 3, 3, 3, -1, 1),
    Sketcher.Constraint("PointOnObject", 0, 3, -2),
    Sketcher.Constraint("PointOnObject", 1, 3, -1),
    Sketcher.Constraint("Diameter", 0, Q("11 mm")),
    Sketcher.Constraint("DistanceX", 1, 3, -1, 1, Q("41 mm")),
    Sketcher.Constraint("DistanceY", 3, 3, 0, 3, Q("187 mm")),
])
sketch15.setExpression("Constraints[7]", "Params.sketch15_diameter")
pocket8 = doc.addObject("PartDesign::Pocket", "Pocket007")
body.addObject(pocket8)
pocket8.Profile = sketch15
pocket8.setExpression("Length", "Params.pocket8_length")

sketch16 = doc.addObject("Sketcher::SketchObject", "Sketch015")
body.addObject(sketch16)
sketch16.AttachmentSupport = (doc.XY_Plane, [""])
sketch16.MapMode = "FlatFace"
sketch16.addGeometry([
    Part.Circle(Vector(0, 120, 0), Vector(0, 0, 1), 12),
    Part.Circle(Vector(-100, -85, 0), Vector(0, 0, 1), 12),
    Part.Circle(Vector(100, -85, 0), Vector(0, 0, 1), 12),
], False)
sketch16.addConstraint([
    Sketcher.Constraint("Equal", 0, 1),
    Sketcher.Constraint("Equal", 1, 2),
    Sketcher.Constraint("Symmetric", 1, 3, 2, 3, -2),
    Sketcher.Constraint("PointOnObject", 0, 3, -2),
    Sketcher.Constraint("Diameter", 0, Q("24 mm")),
    Sketcher.Constraint("DistanceY", -1, 1, 0, 3, Q("120 mm")),
    Sketcher.Constraint("DistanceX", 1, 3, -1, 1, Q("100 mm")),
    Sketcher.Constraint("DistanceY", 1, 3, -1, 1, Q("85 mm")),
])
sketch16.setExpression("Constraints[4]", "Params.sketch16_diameter")
pocket9 = doc.addObject("PartDesign::Pocket", "Pocket008")
body.addObject(pocket9)
pocket9.Profile = sketch16
pocket9.setExpression("Length", "Params.pocket9_length")
pocket9.Reversed = True

doc.recompute()
